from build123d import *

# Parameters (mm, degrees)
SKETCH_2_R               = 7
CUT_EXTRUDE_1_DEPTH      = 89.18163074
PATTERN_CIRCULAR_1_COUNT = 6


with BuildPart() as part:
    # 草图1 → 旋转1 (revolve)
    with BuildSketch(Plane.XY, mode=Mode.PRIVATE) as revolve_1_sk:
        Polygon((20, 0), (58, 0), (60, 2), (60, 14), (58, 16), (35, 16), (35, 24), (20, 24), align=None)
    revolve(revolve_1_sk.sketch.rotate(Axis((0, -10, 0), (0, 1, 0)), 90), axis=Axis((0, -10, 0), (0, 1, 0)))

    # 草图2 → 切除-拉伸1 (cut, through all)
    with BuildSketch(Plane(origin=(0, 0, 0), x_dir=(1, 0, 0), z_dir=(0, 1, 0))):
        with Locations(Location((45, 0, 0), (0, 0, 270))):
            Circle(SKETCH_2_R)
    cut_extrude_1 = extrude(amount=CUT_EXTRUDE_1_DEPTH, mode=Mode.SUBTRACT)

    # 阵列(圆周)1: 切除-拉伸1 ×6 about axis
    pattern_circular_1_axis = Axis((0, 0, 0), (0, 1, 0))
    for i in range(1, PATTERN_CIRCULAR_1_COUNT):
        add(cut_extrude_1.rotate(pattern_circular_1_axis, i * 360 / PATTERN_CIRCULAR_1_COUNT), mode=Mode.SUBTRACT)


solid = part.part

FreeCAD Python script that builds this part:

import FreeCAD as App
import Part
import Sketcher
Q = App.Units.Quantity


def add_polygon(sketch, points):
    """Adds a closed chain of lines whose ends are joined by coincident constraints."""
    first, n = sketch.GeometryCount, len(points)
    for a, b in zip(points, points[1:] + points[:1]):
        sketch.addGeometry(Part.LineSegment(App.Vector(*a, 0), App.Vector(*b, 0)), False)
    for i in range(n):
        sketch.addConstraint(Sketcher.Constraint("Coincident", first + i, 2, first + (i + 1) % n, 1))

doc = App.newDocument("Part")
body = doc.addObject("PartDesign::Body", "Body")

# Sketch on XY plane
sketch1 = body.newObject("Sketcher::SketchObject", "Sketch")
sketch1.AttachmentSupport = (doc.getObject("XY_Plane"), [""])
sketch1.MapMode = "FlatFace"
add_polygon(sketch1, [(20, 0), (58, 0), (60, 2), (60, 14), (58, 16), (35, 16), (35, 24), (20, 24)])  # lines 0-7
sketch1.addConstraint([
    Sketcher.Constraint("Horizontal", 0),
    Sketcher.Constraint("Vertical", 2),
    Sketcher.Constraint("Horizontal", 4),
    Sketcher.Constraint("Vertical", 5),
    Sketcher.Constraint("Horizontal", 6),
    Sketcher.Constraint("Vertical", 7),
    Sketcher.Constraint("PointOnObject", 0, 2, -1),
    Sketcher.Constraint("Perpendicular", 1, 3),
    Sketcher.Constraint("Vertical", 0, 2, 3, 2),
    Sketcher.Constraint("Equal", 1, 3),
    Sketcher.Constraint("DistanceX", 0, 1, 0, 2, Q("38 mm")),
    Sketcher.Constraint("DistanceX", 4, 2, 4, 1, Q("23 mm")),
    Sketcher.Constraint("DistanceY", 2, 1, 2, 2, Q("12 mm")),
    Sketcher.Constraint("DistanceY", 5, 1, 5, 2, Q("8 mm")),
    Sketcher.Constraint("DistanceY", 7, 2, 7, 1, Q("24 mm")),
    Sketcher.Constraint("DistanceX", -1, 1, 0, 2, Q("58 mm")),
])
revolution = body.newObject("PartDesign::Revolution", "Revolution")
revolution.Profile = sketch1
revolution.ReferenceAxis = (sketch1, ["V_Axis"])
revolution.Angle = 360

# Sketch on XZ plane
sketch2 = body.newObject("Sketcher::SketchObject", "Sketch001")
sketch2.AttachmentSupport = (doc.getObject("XZ_Plane"), [""])
sketch2.MapMode = "FlatFace"
sketch2.addGeometry(Part.Circle(App.Vector(45, 0, 0), App.Vector(0, 0, 1), 7), False)
sketch2.addConstraint([
    Sketcher.Constraint("PointOnObject", 0, 3, -1),
    Sketcher.Constraint("Diameter", 0, Q("14 mm")),
    Sketcher.Constraint("DistanceX", -1, 1, 0, 3, Q("45 mm")),
])
pocket1 = body.newObject("PartDesign::Pocket", "Pocket")
pocket1.Profile = sketch2
pocket1.Type = "ThroughAll"
doc.recompute()

polarpattern = body.newObject("PartDesign::PolarPattern", "PolarPattern")
polarpattern.Originals = [pocket1]
polarpattern.Axis = (doc.getObject("Y_Axis"), [""])
polarpattern.Angle = 360
polarpattern.Occurrences = 6
body.Tip = polarpattern

doc.recompute()
